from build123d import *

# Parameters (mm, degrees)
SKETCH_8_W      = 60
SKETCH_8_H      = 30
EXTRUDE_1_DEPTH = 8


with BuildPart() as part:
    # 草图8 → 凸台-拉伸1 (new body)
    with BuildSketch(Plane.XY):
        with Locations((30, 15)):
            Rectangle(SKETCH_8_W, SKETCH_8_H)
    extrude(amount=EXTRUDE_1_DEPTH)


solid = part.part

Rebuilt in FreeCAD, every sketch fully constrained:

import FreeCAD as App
import Part
import Sketcher

V = App.Vector
Q = App.Units.Quantity


def add_polygon(sketch, points):
    """Adds a closed chain of lines whose ends are joined by coincident constraints."""
    first, n = sketch.GeometryCount, len(points)
    for a, b in zip(points, points[1:] + points[:1]):
        sketch.addGeometry(Part.LineSegment(App.Vector(*a, 0), App.Vector(*b, 0)), False)
    for i in range(n):
        sketch.addConstraint(Sketcher.Constraint("Coincident", first + i, 2, first + (i + 1) % n, 1))

doc = App.newDocument("Part")
body = doc.addObject("PartDesign::Body", "Body")

sketch1 = body.newObject("Sketcher::SketchObject", "Sketch")
sketch1.AttachmentSupport = (doc.getObject("XY_Plane"), [""])
sketch1.MapMode = "FlatFace"
add_polygon(sketch1, [(0, 30), (0, 0), (60, 0), (60, 30)])
sketch1.addConstraint([
    Sketcher.Constraint("Vertical", 0),
    Sketcher.Constraint("Horizontal", 1),
    Sketcher.Constraint("Vertical", 2),
    Sketcher.Constraint("Horizontal", 3),
    Sketcher.Constraint("Coincident", 0, 2, -1, 1),
    Sketcher.Constraint("DistanceX", 1, 1, 1, 2, Q("60 mm")),
    Sketcher.Constraint("DistanceY", 0, 2, 0, 1, Q("30 mm")),
])
pad1 = body.newObject("PartDesign::Pad", "Pad")
pad1.Profile = sketch1
pad1.Length = 8

doc.recompute()
